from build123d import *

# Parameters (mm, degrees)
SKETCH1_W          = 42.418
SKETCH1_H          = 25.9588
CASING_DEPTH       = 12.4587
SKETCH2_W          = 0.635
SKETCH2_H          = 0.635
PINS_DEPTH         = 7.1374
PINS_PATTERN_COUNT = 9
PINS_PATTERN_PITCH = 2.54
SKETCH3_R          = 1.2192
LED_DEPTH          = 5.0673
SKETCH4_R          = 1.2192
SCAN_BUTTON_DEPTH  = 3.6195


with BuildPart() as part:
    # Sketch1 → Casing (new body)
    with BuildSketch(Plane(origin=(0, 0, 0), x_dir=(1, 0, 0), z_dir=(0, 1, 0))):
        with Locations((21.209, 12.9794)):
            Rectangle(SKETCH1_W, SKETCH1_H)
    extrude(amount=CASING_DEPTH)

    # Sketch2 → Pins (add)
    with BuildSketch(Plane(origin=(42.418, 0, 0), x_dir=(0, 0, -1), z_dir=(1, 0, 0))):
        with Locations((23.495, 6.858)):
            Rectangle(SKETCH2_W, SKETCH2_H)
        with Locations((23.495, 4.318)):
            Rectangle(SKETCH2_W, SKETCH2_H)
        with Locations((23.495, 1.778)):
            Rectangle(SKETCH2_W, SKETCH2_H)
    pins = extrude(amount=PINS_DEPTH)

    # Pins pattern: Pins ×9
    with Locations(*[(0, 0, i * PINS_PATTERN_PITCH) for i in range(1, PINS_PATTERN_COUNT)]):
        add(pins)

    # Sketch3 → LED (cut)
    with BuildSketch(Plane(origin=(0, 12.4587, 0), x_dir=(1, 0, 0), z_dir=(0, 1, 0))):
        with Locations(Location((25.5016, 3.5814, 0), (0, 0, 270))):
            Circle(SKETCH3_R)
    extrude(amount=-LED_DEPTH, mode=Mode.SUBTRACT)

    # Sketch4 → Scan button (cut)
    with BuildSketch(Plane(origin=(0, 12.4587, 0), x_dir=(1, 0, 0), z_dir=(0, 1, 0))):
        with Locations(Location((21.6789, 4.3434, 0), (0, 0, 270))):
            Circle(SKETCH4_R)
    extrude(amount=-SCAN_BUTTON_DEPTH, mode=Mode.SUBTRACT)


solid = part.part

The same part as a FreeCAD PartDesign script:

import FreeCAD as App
import Part
import Sketcher

V = App.Vector
Q = App.Units.Quantity


def add_polygon(sketch, points):
    """Adds a closed chain of lines whose ends are joined by coincident constraints."""
    first, n = sketch.GeometryCount, len(points)
    for a, b in zip(points, points[1:] + points[:1]):
        sketch.addGeometry(Part.LineSegment(App.Vector(*a, 0), App.Vector(*b, 0)), False)
    for i in range(n):
        sketch.addConstraint(Sketcher.Constraint("Coincident", first + i, 2, first + (i + 1) % n, 1))

doc = App.newDocument("Part")
body = doc.addObject("PartDesign::Body", "Body")

# Sketch on XZ plane
sketch1 = body.newObject("Sketcher::SketchObject", "Sketch")
sketch1.AttachmentSupport = (doc.getObject("XZ_Plane"), [""])
sketch1.MapMode = "FlatFace"
add_polygon(sketch1, [(0, -26), (0, 0), (42, 0), (42, -26)])  # lines 0-3
sketch1.addConstraint([
    Sketcher.Constraint("Vertical", 0),
    Sketcher.Constraint("Horizontal", 1),
    Sketcher.Constraint("Vertical", 2),
    Sketcher.Constraint("Horizontal", 3),
    Sketcher.Constraint("Coincident", 0, 2, -1, 1),
    Sketcher.Constraint("DistanceX", 1, 1, 1, 2, Q("1.67 in")),
    Sketcher.Constraint("DistanceY", 0, 1, 0, 2, Q("1.022 in")),
])
pad1 = body.newObject("PartDesign::Pad", "Pad")
pad1.Profile = sketch1
pad1.Length = Q("0.4905 in")
pad1.Reversed = True

# Sketch on YZ plane
sketch2 = body.newObject("Sketcher::SketchObject", "Sketch001")
sketch2.AttachmentSupport = (doc.getObject("YZ_Plane"), [""])
sketch2.MapMode = "FlatFace"
sketch2.AttachmentOffset = App.Placement(V(0, 0, 1.67 * 25.4), App.Rotation())
add_polygon(sketch2, [(7.2, -23.2), (6.5, -23.2), (6.5, -23.8), (7.2, -23.8)])  # lines 0-3
add_polygon(sketch2, [(4.6, -23.2), (4, -23.2), (4, -23.8), (4.6, -23.8)])  # lines 4-7
add_polygon(sketch2, [(2.1, -23.2), (1.5, -23.2), (1.5, -23.8), (2.1, -23.8)])  # lines 8-11
sketch2.addConstraint([
    Sketcher.Constraint("Horizontal", 0),
    Sketcher.Constraint("Vertical", 1),
    Sketcher.Constraint("Horizontal", 2),
    Sketcher.Constraint("Vertical", 3),
    Sketcher.Constraint("Horizontal", 4),
    Sketcher.Constraint("Vertical", 5),
    Sketcher.Constraint("Horizontal", 6),
    Sketcher.Constraint("Vertical", 7),
    Sketcher.Constraint("Horizontal", 8),
    Sketcher.Constraint("Vertical", 9),
    Sketcher.Constraint("Horizontal", 10),
    Sketcher.Constraint("Vertical", 11),
    Sketcher.Constraint("Horizontal", 3, 2, 4, 2),
    Sketcher.Constraint("Horizontal", 2, 2, 5, 2),
    Sketcher.Constraint("Horizontal", 7, 2, 8, 2),
    Sketcher.Constraint("Horizontal", 6, 2, 9, 2),
    Sketcher.Constraint("Equal", 2, 4),
    Sketcher.Constraint("Equal", 6, 8),
    Sketcher.Constraint("Equal", 10, 1),
    Sketcher.Constraint("DistanceX", 4, 2, 0, 2, Q("0.1 in")),
    Sketcher.Constraint("DistanceX", 8, 2, 4, 2, Q("0.1 in")),
    Sketcher.Constraint("DistanceX", 0, 2, 0, 1, Q("0.025 in")),
    Sketcher.Constraint("DistanceY", 1, 2, -1, 1, Q("0.9375 in")),
    Sketcher.Constraint("DistanceX", -1, 1, 0, 2, Q("0.2575 in")),
])
pad2 = body.newObject("PartDesign::Pad", "Pad001")
pad2.Profile = sketch2
pad2.Length = Q("0.281 in")
doc.recompute()

linearpattern = body.newObject("PartDesign::LinearPattern", "LinearPattern")
linearpattern.Originals = [pad2]
linearpattern.Direction = (doc.getObject("Z_Axis"), [""])
linearpattern.Mode = "offset"
linearpattern.Offset = Q("0.1 in")
linearpattern.Occurrences = 9
body.Tip = linearpattern

# Sketch on XZ plane
sketch3 = body.newObject("Sketcher::SketchObject", "Sketch002")
sketch3.AttachmentSupport = (doc.getObject("XZ_Plane"), [""])
sketch3.MapMode = "FlatFace"
sketch3.AttachmentOffset = App.Placement(V(0, 0, -0.4905 * 25.4), App.Rotation())
sketch3.addGeometry(Part.Circle(V(25.5, -3.6, 0), V(0, 0, 1), 1.2), False)
sketch3.addConstraint([
    Sketcher.Constraint("Diameter", 0, Q("0.096 in")),
    Sketcher.Constraint("DistanceX", -1, 1, 0, 3, Q("1.004 in")),
    Sketcher.Constraint("DistanceY", 0, 3, -1, 1, Q("0.141 in")),
])
pocket1 = body.newObject("PartDesign::Pocket", "Pocket")
pocket1.Profile = sketch3
pocket1.Length = Q("0.1995 in")
pocket1.Reversed = True

# Sketch on XZ plane
sketch4 = body.newObject("Sketcher::SketchObject", "Sketch003")
sketch4.AttachmentSupport = (doc.getObject("XZ_Plane"), [""])
sketch4.MapMode = "FlatFace"
sketch4.AttachmentOffset = App.Placement(V(0, 0, -0.4905 * 25.4), App.Rotation())
sketch4.addGeometry(Part.Circle(V(21.7, -4.3, 0), V(0, 0, 1), 1.2), False)
sketch4.addConstraint([
    Sketcher.Constraint("Diameter", 0, Q("0.096 in")),
    Sketcher.Constraint("DistanceY", 0, 3, -1, 1, Q("0.171 in")),
    Sketcher.Constraint("DistanceX", -1, 1, 0, 3, Q("0.8535 in")),
])
pocket2 = body.newObject("PartDesign::Pocket", "Pocket001")
pocket2.Profile = sketch4
pocket2.Length = Q("0.1425 in")
pocket2.Reversed = True

doc.recompute()
